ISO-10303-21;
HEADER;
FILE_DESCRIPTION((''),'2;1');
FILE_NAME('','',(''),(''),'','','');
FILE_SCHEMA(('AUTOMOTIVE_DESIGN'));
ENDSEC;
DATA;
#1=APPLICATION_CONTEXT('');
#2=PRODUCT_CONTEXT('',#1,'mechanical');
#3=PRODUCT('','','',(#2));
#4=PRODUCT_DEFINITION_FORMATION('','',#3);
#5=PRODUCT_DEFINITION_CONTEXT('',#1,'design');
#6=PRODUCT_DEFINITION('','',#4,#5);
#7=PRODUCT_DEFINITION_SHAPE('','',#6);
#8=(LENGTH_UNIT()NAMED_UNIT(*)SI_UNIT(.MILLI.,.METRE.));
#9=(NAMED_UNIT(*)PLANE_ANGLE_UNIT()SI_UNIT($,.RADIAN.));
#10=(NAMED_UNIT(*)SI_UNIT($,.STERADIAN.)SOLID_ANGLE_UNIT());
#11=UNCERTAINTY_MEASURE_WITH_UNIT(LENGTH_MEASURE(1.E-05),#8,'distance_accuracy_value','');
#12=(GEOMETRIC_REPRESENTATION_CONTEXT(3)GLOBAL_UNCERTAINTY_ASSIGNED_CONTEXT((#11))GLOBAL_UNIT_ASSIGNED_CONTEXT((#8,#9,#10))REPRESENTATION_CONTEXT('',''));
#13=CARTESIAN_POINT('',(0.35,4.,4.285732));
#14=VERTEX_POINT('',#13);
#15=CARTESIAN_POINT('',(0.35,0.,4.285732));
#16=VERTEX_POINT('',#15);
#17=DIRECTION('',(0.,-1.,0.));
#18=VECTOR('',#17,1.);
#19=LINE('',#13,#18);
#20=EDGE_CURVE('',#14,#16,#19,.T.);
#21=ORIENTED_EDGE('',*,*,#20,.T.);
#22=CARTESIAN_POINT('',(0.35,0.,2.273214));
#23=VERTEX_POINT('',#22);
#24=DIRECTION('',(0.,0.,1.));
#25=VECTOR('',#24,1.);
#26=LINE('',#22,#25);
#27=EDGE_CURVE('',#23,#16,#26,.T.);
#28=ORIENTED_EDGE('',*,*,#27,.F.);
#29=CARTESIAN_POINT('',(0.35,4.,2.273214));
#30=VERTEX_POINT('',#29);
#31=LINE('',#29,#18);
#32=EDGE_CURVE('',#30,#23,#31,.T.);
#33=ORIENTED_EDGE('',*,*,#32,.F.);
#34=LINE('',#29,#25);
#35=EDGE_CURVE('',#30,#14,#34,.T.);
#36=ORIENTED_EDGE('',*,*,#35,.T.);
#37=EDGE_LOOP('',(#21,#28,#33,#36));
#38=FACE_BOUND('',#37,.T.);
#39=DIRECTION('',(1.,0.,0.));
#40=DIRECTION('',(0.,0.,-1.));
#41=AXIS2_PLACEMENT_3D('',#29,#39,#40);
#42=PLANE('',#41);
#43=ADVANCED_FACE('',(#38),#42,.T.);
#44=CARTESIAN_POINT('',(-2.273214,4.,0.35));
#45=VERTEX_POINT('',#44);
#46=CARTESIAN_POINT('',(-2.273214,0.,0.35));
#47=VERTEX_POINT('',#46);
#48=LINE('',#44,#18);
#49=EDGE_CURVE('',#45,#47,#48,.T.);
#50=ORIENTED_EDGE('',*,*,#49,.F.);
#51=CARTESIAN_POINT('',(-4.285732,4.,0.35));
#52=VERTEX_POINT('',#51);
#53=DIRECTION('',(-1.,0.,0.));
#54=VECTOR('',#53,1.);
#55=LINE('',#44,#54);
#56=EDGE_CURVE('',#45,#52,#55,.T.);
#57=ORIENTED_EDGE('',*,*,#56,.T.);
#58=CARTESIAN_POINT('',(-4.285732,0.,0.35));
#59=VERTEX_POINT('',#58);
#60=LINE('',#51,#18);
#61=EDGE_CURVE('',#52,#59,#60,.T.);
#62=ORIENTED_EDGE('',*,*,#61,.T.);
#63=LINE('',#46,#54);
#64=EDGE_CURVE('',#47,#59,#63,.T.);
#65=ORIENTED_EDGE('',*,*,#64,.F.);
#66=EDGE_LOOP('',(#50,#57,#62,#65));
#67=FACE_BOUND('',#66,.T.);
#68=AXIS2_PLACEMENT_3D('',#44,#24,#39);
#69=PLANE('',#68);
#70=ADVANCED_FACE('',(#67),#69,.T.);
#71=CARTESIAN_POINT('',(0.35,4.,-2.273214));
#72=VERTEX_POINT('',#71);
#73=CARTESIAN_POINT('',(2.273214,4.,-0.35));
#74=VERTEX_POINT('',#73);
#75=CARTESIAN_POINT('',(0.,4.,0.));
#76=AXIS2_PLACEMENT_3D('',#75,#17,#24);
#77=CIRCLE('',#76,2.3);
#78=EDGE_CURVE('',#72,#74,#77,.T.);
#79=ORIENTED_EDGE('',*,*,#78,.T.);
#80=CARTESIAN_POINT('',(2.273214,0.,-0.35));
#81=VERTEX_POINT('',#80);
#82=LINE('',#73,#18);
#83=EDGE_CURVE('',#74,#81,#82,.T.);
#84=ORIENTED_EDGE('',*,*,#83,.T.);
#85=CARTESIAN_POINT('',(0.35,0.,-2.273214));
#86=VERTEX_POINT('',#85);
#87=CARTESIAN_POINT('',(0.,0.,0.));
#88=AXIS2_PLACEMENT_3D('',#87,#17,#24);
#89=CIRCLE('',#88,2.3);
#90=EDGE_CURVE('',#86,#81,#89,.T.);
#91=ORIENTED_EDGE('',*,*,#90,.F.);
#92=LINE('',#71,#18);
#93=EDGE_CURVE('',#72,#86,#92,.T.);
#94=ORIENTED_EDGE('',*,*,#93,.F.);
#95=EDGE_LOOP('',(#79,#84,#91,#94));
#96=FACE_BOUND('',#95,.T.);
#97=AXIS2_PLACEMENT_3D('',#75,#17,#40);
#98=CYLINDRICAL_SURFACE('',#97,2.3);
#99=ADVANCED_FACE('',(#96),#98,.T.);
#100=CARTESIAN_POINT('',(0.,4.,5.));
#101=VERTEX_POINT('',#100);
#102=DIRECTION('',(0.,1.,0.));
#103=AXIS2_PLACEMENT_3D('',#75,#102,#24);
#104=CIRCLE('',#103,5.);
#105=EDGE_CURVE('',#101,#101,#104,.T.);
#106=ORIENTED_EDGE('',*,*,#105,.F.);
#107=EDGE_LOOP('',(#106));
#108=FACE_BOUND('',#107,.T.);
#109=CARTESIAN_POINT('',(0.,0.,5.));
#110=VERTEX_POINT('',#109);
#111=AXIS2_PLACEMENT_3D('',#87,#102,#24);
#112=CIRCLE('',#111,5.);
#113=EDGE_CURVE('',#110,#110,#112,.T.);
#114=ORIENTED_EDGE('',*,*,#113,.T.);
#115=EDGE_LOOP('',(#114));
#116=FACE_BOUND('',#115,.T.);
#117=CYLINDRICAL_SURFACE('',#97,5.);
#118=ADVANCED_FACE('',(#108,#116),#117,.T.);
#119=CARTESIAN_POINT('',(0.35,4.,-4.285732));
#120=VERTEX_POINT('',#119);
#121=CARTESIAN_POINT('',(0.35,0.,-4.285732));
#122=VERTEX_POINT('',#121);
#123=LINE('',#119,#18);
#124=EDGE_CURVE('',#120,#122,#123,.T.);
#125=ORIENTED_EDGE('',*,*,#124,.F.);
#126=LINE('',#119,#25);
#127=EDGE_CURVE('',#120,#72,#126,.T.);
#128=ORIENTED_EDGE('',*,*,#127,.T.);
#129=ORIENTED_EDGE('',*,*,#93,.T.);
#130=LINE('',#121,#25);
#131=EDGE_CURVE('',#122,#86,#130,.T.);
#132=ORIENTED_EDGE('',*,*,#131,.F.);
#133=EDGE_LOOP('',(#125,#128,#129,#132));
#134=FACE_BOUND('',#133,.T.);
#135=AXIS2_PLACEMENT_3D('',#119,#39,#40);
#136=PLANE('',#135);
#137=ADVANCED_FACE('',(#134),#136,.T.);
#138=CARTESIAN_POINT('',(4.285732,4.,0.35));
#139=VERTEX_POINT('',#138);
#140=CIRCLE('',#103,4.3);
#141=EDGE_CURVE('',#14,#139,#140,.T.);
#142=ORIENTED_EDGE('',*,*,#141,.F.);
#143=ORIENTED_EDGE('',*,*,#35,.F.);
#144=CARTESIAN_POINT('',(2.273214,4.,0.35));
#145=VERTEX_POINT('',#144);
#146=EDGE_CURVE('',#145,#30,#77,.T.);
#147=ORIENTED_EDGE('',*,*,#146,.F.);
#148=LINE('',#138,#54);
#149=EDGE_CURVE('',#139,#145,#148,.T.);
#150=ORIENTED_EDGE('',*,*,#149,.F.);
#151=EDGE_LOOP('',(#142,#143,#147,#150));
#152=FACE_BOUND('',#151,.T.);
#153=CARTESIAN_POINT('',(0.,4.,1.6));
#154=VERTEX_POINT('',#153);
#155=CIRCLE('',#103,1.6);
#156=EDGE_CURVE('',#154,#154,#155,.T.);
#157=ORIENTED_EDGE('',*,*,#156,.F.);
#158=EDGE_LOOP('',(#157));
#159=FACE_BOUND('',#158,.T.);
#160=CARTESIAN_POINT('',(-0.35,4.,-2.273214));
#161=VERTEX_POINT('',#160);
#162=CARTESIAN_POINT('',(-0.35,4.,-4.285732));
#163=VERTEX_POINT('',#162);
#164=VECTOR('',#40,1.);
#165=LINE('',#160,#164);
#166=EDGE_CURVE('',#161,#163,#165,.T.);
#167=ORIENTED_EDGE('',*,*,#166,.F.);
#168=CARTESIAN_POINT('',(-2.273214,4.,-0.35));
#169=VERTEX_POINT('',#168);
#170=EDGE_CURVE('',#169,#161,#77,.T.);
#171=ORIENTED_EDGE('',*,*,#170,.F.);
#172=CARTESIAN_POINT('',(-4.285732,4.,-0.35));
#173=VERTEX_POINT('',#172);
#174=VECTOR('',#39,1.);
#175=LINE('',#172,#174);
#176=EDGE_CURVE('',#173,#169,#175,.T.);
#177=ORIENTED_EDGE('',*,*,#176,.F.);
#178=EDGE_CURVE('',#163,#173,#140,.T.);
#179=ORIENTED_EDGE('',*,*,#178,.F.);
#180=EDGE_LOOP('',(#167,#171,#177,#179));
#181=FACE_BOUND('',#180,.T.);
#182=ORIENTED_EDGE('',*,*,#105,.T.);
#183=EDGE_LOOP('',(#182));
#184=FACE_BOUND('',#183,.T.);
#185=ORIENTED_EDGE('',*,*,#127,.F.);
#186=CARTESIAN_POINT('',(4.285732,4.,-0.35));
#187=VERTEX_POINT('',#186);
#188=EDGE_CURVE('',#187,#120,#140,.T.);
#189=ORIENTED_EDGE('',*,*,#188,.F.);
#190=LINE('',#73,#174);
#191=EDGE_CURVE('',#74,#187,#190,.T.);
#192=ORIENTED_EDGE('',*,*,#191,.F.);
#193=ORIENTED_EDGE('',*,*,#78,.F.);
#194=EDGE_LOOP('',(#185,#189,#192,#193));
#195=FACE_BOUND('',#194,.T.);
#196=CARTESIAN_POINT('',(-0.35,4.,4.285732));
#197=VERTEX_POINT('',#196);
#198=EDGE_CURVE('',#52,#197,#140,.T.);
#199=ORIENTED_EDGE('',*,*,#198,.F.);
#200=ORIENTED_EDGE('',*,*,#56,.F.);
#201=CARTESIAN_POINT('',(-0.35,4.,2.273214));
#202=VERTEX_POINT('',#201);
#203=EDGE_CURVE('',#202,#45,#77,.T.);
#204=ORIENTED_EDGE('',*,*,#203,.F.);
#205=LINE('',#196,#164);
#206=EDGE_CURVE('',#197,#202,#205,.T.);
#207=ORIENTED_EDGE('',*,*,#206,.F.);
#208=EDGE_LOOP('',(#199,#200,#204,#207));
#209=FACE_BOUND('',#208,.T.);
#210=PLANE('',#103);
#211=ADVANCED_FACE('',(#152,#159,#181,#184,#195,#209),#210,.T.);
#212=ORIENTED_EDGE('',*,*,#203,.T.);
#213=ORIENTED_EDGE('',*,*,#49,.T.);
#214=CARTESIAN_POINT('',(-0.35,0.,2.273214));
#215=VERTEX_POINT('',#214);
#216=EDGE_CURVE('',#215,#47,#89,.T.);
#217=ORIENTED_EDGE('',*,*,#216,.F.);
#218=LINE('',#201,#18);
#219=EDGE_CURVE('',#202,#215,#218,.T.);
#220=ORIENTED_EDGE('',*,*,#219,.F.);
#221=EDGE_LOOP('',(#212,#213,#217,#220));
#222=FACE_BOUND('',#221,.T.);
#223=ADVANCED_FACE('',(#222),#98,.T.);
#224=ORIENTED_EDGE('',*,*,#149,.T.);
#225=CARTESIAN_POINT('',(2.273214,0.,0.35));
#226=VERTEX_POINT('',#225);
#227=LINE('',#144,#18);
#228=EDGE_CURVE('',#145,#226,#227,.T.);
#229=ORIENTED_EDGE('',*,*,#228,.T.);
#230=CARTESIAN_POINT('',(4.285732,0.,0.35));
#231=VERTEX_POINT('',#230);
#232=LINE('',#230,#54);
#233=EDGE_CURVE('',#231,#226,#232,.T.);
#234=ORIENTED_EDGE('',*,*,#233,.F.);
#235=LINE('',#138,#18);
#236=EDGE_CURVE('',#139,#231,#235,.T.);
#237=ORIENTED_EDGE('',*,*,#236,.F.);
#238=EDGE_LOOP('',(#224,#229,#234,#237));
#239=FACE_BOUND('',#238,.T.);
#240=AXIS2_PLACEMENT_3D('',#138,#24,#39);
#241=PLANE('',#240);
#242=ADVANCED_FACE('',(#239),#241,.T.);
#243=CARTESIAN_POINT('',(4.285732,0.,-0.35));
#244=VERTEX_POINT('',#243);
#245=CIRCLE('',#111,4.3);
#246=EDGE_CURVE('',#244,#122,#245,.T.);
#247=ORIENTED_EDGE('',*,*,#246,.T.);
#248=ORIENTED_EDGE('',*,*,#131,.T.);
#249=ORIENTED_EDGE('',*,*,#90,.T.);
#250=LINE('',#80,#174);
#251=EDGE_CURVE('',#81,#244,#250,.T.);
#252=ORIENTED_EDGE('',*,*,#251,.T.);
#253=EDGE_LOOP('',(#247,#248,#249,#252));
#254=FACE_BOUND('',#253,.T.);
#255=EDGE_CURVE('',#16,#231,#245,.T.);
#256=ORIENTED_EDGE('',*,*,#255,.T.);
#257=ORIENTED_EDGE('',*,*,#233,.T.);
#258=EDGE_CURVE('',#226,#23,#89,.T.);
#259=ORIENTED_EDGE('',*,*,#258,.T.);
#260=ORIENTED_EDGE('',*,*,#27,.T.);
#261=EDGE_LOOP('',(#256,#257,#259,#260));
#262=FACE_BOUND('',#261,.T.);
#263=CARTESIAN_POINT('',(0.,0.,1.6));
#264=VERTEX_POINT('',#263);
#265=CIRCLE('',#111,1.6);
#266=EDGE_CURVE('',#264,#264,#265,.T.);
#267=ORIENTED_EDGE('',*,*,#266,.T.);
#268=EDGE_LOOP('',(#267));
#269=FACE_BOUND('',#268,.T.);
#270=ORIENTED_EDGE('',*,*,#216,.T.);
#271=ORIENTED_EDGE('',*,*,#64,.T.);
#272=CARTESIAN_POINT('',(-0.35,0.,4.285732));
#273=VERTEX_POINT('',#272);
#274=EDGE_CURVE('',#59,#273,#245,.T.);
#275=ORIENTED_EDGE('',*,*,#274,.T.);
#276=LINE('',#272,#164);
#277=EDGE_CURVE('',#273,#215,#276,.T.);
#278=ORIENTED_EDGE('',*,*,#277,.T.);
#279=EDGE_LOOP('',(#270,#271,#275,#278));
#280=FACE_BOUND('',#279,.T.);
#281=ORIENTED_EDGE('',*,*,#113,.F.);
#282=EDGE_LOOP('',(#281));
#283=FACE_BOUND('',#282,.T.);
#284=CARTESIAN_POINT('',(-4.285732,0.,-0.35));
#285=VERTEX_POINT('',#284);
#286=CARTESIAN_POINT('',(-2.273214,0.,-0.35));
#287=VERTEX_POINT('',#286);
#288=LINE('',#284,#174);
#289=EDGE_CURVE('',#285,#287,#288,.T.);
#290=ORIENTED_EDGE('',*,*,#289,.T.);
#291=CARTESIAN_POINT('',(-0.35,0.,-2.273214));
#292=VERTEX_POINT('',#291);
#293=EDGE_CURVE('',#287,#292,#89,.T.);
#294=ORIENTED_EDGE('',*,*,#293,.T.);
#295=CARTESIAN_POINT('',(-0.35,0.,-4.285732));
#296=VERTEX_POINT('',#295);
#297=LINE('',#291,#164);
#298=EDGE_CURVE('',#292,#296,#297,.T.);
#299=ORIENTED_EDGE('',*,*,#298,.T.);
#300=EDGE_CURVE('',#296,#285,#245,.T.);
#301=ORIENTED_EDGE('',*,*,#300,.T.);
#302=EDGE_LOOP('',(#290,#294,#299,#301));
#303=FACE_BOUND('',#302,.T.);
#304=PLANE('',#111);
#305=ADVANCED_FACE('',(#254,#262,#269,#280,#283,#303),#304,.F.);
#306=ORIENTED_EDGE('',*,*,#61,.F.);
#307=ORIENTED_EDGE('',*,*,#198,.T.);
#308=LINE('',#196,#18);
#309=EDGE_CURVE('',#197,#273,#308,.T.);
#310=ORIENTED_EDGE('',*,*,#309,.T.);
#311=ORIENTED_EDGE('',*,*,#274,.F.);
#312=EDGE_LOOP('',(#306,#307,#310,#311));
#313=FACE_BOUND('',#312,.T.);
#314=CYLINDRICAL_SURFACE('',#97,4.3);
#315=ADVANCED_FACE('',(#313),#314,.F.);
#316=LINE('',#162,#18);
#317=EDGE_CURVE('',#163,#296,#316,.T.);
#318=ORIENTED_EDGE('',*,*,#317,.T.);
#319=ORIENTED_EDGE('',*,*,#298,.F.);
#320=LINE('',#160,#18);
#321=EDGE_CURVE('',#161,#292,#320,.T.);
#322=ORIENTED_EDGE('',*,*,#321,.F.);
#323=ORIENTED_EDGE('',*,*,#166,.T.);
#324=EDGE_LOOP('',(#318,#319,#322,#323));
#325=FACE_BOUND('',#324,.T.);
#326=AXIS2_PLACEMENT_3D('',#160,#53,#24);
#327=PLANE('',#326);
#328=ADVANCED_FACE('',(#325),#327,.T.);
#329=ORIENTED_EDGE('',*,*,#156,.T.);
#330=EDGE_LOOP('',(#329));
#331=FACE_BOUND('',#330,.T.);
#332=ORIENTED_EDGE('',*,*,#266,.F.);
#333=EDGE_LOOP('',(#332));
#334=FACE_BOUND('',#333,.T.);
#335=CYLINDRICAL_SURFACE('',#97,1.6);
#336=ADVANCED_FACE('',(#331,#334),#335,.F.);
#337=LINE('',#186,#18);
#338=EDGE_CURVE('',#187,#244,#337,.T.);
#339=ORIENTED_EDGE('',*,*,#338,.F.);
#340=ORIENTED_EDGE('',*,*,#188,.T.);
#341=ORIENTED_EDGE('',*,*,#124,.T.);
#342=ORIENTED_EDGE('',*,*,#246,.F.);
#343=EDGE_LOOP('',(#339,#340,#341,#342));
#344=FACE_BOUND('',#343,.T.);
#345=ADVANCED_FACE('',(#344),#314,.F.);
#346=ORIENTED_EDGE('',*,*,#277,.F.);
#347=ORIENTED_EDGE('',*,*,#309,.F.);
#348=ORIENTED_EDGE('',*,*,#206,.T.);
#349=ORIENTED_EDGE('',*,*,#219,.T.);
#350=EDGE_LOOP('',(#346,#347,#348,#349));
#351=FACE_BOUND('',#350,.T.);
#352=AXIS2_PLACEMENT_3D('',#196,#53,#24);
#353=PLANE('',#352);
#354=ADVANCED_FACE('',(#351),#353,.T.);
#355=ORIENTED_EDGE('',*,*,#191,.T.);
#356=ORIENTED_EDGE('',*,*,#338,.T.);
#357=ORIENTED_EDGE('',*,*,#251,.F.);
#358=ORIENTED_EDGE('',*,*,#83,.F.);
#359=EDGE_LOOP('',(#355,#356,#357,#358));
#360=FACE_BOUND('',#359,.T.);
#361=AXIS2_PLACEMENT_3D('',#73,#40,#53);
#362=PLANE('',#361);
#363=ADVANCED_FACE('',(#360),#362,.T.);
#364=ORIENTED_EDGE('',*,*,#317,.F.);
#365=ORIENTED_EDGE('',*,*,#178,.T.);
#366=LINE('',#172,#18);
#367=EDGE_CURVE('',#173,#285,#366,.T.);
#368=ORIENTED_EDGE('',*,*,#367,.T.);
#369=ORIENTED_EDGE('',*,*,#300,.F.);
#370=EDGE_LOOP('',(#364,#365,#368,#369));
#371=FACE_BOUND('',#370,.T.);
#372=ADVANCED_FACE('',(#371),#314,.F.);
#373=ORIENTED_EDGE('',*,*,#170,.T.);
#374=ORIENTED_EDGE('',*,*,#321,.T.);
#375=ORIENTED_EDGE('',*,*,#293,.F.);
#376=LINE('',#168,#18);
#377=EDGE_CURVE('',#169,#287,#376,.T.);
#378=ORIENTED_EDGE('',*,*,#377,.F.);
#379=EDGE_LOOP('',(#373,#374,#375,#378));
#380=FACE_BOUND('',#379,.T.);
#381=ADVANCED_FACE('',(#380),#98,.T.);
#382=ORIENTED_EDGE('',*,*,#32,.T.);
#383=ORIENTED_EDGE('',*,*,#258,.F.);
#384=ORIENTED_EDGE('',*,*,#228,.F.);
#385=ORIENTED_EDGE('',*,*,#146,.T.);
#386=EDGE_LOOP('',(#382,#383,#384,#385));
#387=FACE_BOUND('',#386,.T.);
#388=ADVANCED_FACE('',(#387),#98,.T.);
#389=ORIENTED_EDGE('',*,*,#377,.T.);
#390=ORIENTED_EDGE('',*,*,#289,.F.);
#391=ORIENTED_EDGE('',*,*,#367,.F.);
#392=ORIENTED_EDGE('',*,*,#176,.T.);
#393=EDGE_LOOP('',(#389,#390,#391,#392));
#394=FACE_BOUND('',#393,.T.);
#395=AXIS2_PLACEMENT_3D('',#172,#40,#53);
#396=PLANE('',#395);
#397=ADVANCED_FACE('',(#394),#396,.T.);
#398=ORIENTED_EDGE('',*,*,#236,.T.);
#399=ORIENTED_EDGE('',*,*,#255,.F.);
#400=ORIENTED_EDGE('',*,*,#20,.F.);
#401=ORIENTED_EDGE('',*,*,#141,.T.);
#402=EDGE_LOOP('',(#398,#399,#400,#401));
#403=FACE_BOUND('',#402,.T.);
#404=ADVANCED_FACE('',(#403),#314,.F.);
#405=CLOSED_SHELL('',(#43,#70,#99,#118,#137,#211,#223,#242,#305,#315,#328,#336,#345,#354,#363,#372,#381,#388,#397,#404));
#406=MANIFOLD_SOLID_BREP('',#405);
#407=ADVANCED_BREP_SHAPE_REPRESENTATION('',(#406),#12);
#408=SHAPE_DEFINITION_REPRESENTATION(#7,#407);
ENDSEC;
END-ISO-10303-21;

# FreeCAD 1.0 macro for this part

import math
import FreeCAD as App
import Part
import Sketcher
Q = App.Units.Quantity

doc = App.newDocument("Part")
body = doc.addObject("PartDesign::Body", "Body")

# Sketch on XZ plane
sketch1 = body.newObject("Sketcher::SketchObject", "Sketch")
sketch1.AttachmentSupport = (doc.getObject("XZ_Plane"), [""])
sketch1.MapMode = "FlatFace"
sketch1.addGeometry([
    Part.Circle(App.Vector(0, 0, 0), App.Vector(0, 0, 1), 5),  # 0
    Part.LineSegment(App.Vector(-2.273214, -0.35, 0), App.Vector(-4.285732, -0.35, 0)),  # 1
    Part.ArcOfCircle(Part.Circle(App.Vector(0, 0, 0), App.Vector(0, 0, 1), 4.3), math.radians(-175.331225), math.radians(-94.668775)),  # 2
    Part.LineSegment(App.Vector(-0.35, -4.285732, 0), App.Vector(-0.35, -2.273214, 0)),  # 3
    Part.ArcOfCircle(Part.Circle(App.Vector(0, 0, 0), App.Vector(0, 0, 1), 2.3), math.radians(-171.247071), math.radians(-98.752929)),  # 4
    Part.LineSegment(App.Vector(-0.35, 2.273214, 0), App.Vector(-0.35, 4.285732, 0)),  # 5
    Part.ArcOfCircle(Part.Circle(App.Vector(0, 0, 0), App.Vector(0, 0, 1), 4.3), math.radians(94.668775), math.radians(175.331225)),  # 6
    Part.LineSegment(App.Vector(-4.285732, 0.35, 0), App.Vector(-2.273214, 0.35, 0)),  # 7
    Part.ArcOfCircle(Part.Circle(App.Vector(0, 0, 0), App.Vector(0, 0, 1), 2.3), math.radians(98.752929), math.radians(171.247071)),  # 8
    Part.Circle(App.Vector(0, 0, 0), App.Vector(0, 0, 1), 1.6),  # 9
    Part.LineSegment(App.Vector(4.285732, -0.35, 0), App.Vector(2.273214, -0.35, 0)),  # 10
    Part.ArcOfCircle(Part.Circle(App.Vector(0, 0, 0), App.Vector(0, 0, 1), 2.3), math.radians(-81.247071), math.radians(-8.752929)),  # 11
    Part.LineSegment(App.Vector(0.35, -2.273214, 0), App.Vector(0.35, -4.285732, 0)),  # 12
    Part.ArcOfCircle(Part.Circle(App.Vector(0, 0, 0), App.Vector(0, 0, 1), 4.3), math.radians(-85.331225), math.radians(-4.668775)),  # 13
    Part.LineSegment(App.Vector(2.273214, 0.35, 0), App.Vector(4.285732, 0.35, 0)),  # 14
    Part.ArcOfCircle(Part.Circle(App.Vector(0, 0, 0), App.Vector(0, 0, 1), 4.3), math.radians(4.668775), math.radians(85.331225)),  # 15
    Part.LineSegment(App.Vector(0.35, 4.285732, 0), App.Vector(0.35, 2.273214, 0)),  # 16
    Part.ArcOfCircle(Part.Circle(App.Vector(0, 0, 0), App.Vector(0, 0, 1), 2.3), math.radians(8.752929), math.radians(81.247071)),  # 17
], False)
sketch1.addConstraint([
    Sketcher.Constraint("Coincident", 1, 2, 2, 1),
    Sketcher.Constraint("Coincident", 2, 2, 3, 1),
    Sketcher.Constraint("Coincident", 3, 2, 4, 2),
    Sketcher.Constraint("Coincident", 4, 1, 1, 1),
    Sketcher.Constraint("Coincident", 5, 2, 6, 1),
    Sketcher.Constraint("Coincident", 6, 2, 7, 1),
    Sketcher.Constraint("Coincident", 7, 2, 8, 2),
    Sketcher.Constraint("Coincident", 8, 1, 5, 1),
    Sketcher.Constraint("Coincident", 10, 2, 11, 2),
    Sketcher.Constraint("Coincident", 11, 1, 12, 1),
    Sketcher.Constraint("Coincident", 12, 2, 13, 1),
    Sketcher.Constraint("Coincident", 13, 2, 10, 1),
    Sketcher.Constraint("Coincident", 14, 2, 15, 1),
    Sketcher.Constraint("Coincident", 15, 2, 16, 1),
    Sketcher.Constraint("Coincident", 16, 2, 17, 2),
    Sketcher.Constraint("Coincident", 17, 1, 14, 1),
    Sketcher.Constraint("Horizontal", 1),
    Sketcher.Constraint("Vertical", 3),
    Sketcher.Constraint("Vertical", 5),
    Sketcher.Constraint("Horizontal", 7),
    Sketcher.Constraint("Horizontal", 10),
    Sketcher.Constraint("Vertical", 12),
    Sketcher.Constraint("Horizontal", 14),
    Sketcher.Constraint("Vertical", 16),
    Sketcher.Constraint("Coincident", 0, 3, -1, 1),
    Sketcher.Constraint("Coincident", 2, 3, -1, 1),
    Sketcher.Constraint("Coincident", 4, 3, -1, 1),
    Sketcher.Constraint("Coincident", 6, 3, -1, 1),
    Sketcher.Constraint("Coincident", 8, 3, -1, 1),
    Sketcher.Constraint("Coincident", 9, 3, -1, 1),
    Sketcher.Constraint("Coincident", 11, 3, -1, 1),
    Sketcher.Constraint("Coincident", 13, 3, -1, 1),
    Sketcher.Constraint("Coincident", 15, 3, -1, 1),
    Sketcher.Constraint("Coincident", 17, 3, -1, 1),
    Sketcher.Constraint("Equal", 2, 6),
    Sketcher.Constraint("Equal", 4, 8),
    Sketcher.Constraint("Equal", 8, 11),
    Sketcher.Constraint("Equal", 6, 13),
    Sketcher.Constraint("Equal", 13, 15),
    Sketcher.Constraint("Equal", 11, 17),
    Sketcher.Constraint("Horizontal", 4, 1, 10, 2),
    Sketcher.Constraint("Horizontal", 3, 2, 11, 1),
    Sketcher.Constraint("Horizontal", 7, 2, 14, 2),
    Sketcher.Constraint("Horizontal", 5, 2, 15, 2),
    Sketcher.Constraint("Vertical", 3, 2, 5, 2),
    Sketcher.Constraint("Vertical", 1, 2, 6, 2),
    Sketcher.Constraint("Equal", 14, 3),
    Sketcher.Constraint("Diameter", 0, Q("10 mm")),
    Sketcher.Constraint("Diameter", 9, Q("3.2 mm")),
    Sketcher.Constraint("Radius", 2, Q("4.3 mm")),
    Sketcher.Constraint("Radius", 4, Q("2.3 mm")),
    Sketcher.Constraint("DistanceY", 1, 2, 6, 2, Q("0.7 mm")),
])
pad1 = body.newObject("PartDesign::Pad", "Pad")
pad1.Profile = sketch1
pad1.Length = 4
pad1.Reversed = True

doc.recompute()
